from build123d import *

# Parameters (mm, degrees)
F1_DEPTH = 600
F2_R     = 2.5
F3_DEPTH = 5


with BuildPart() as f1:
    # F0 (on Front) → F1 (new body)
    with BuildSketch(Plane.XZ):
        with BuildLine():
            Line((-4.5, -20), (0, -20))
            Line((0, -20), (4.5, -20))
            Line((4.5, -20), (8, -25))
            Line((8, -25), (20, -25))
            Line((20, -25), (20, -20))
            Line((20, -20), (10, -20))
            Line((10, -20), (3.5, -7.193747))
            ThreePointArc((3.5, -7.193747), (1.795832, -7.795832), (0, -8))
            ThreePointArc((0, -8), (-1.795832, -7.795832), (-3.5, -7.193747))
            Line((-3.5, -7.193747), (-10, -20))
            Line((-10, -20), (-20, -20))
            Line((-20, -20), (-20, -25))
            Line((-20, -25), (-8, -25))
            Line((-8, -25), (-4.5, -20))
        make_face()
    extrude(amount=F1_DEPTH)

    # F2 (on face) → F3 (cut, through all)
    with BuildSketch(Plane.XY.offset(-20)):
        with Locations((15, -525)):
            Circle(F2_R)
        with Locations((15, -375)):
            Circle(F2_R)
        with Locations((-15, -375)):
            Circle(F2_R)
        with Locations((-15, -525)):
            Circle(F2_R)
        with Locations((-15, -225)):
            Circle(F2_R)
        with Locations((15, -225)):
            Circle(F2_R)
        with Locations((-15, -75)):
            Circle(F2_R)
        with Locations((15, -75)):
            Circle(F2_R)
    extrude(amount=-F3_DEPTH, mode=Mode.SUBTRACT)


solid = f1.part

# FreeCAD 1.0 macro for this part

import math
import FreeCAD as App
import Part
import Sketcher

V = App.Vector

doc = App.newDocument("Part")
body = doc.addObject("PartDesign::Body", "Body")

# Sketch on XZ plane
sketch1 = body.newObject("Sketcher::SketchObject", "Sketch")
sketch1.AttachmentSupport = (doc.getObject("XZ_Plane"), [""])
sketch1.MapMode = "FlatFace"
sketch1.addGeometry([
    Part.LineSegment(V(-4.5, -20, 0), V(4.5, -20, 0)),  # 0
    Part.LineSegment(V(4.5, -20, 0), V(8, -25, 0)),  # 1
    Part.LineSegment(V(8, -25, 0), V(20, -25, 0)),  # 2
    Part.LineSegment(V(20, -25, 0), V(20, -20, 0)),  # 3
    Part.LineSegment(V(20, -20, 0), V(10, -20, 0)),  # 4
    Part.LineSegment(V(10, -20, 0), V(3.5, -7.2, 0)),  # 5
    Part.ArcOfCircle(Part.Circle(V(0, 0, 0), V(0, 0, 1), 8), math.radians(-90), math.radians(-64)),  # 6
    Part.ArcOfCircle(Part.Circle(V(0, 0, 0), V(0, 0, 1), 8), math.radians(-116), math.radians(-90)),  # 7
    Part.LineSegment(V(-3.5, -7.2, 0), V(-10, -20, 0)),  # 8
    Part.LineSegment(V(-10, -20, 0), V(-20, -20, 0)),  # 9
    Part.LineSegment(V(-20, -20, 0), V(-20, -25, 0)),  # 10
    Part.LineSegment(V(-20, -25, 0), V(-8, -25, 0)),  # 11
    Part.LineSegment(V(-8, -25, 0), V(-4.5, -20, 0)),  # 12
], False)
sketch1.addConstraint([
    Sketcher.Constraint("Coincident", 0, 2, 1, 1),
    Sketcher.Constraint("Coincident", 1, 2, 2, 1),
    Sketcher.Constraint("Coincident", 2, 2, 3, 1),
    Sketcher.Constraint("Coincident", 3, 2, 4, 1),
    Sketcher.Constraint("Coincident", 4, 2, 5, 1),
    Sketcher.Constraint("Coincident", 5, 2, 6, 2),
    Sketcher.Constraint("Tangent", 6, 1, 7, 2),
    Sketcher.Constraint("Coincident", 7, 1, 8, 1),
    Sketcher.Constraint("Coincident", 8, 2, 9, 1),
    Sketcher.Constraint("Coincident", 9, 2, 10, 1),
    Sketcher.Constraint("Coincident", 10, 2, 11, 1),
    Sketcher.Constraint("Coincident", 11, 2, 12, 1),
    Sketcher.Constraint("Coincident", 12, 2, 0, 1),
    Sketcher.Constraint("Horizontal", 0),
    Sketcher.Constraint("Horizontal", 2),
    Sketcher.Constraint("Vertical", 3),
    Sketcher.Constraint("Horizontal", 4),
    Sketcher.Constraint("Horizontal", 9),
    Sketcher.Constraint("Vertical", 10),
    Sketcher.Constraint("Horizontal", 11),
    Sketcher.Constraint("Equal", 6, 7),
    Sketcher.Constraint("Symmetric", 5, 2, 7, 1, -2),
    Sketcher.Constraint("Symmetric", 4, 2, 8, 2, -2),
    Sketcher.Constraint("Symmetric", 2, 2, 10, 2, -2),
    Sketcher.Constraint("PointOnObject", 6, 1, -2),
    Sketcher.Constraint("Horizontal", 0, 2, 3, 2),
    Sketcher.Constraint("Equal", 2, 11),
    Sketcher.Constraint("Equal", 1, 12),
    Sketcher.Constraint("DistanceX", 0, 1, 0, 2, 9.0),
    Sketcher.Constraint("DistanceX", 2, 1, 2, 2, 12.0),
    Sketcher.Constraint("DistanceX", 4, 2, 4, 1, 10.0),
    Sketcher.Constraint("DistanceY", 3, 1, 3, 2, 5.0),
    Sketcher.Constraint("DistanceY", 0, 2, -1, 1, 20.0),
    Sketcher.Constraint("DistanceX", -1, 1, 1, 2, 8.0),
    Sketcher.Constraint("DistanceY", 6, 1, -1, 1, 8.0),
    Sketcher.Constraint("DistanceX", 5, 2, 0, 2, 1.0),
    Sketcher.Constraint("Radius", 6, 7.999973),
])
pad1 = body.newObject("PartDesign::Pad", "Pad")
pad1.Profile = sketch1
pad1.Length = 600

# Sketch on XY plane
sketch2 = body.newObject("Sketcher::SketchObject", "Sketch001")
sketch2.AttachmentSupport = (doc.getObject("XY_Plane"), [""])
sketch2.MapMode = "FlatFace"
sketch2.AttachmentOffset = App.Placement(V(0, 0, -20), App.Rotation())
sketch2.addGeometry([
    Part.Circle(V(15, -525, 0), V(0, 0, 1), 2.5),  # 0
    Part.Circle(V(15, -375, 0), V(0, 0, 1), 2.5),  # 1
    Part.Circle(V(-15, -375, 0), V(0, 0, 1), 2.5),  # 2
    Part.Circle(V(-15, -525, 0), V(0, 0, 1), 2.5),  # 3
    Part.Circle(V(-15, -225, 0), V(0, 0, 1), 2.5),  # 4
    Part.Circle(V(15, -225, 0), V(0, 0, 1), 2.5),  # 5
    Part.Circle(V(-15, -75, 0), V(0, 0, 1), 2.5),  # 6
    Part.Circle(V(15, -75, 0), V(0, 0, 1), 2.5),  # 7
], False)
sketch2.addConstraint([
    Sketcher.Constraint("Equal", 0, 1),
    Sketcher.Constraint("Equal", 1, 2),
    Sketcher.Constraint("Equal", 2, 3),
    Sketcher.Constraint("Equal", 3, 4),
    Sketcher.Constraint("Equal", 4, 5),
    Sketcher.Constraint("Equal", 5, 6),
    Sketcher.Constraint("Equal", 6, 7),
    Sketcher.Constraint("Symmetric", 1, 3, 2, 3, -2),
    Sketcher.Constraint("Symmetric", 0, 3, 3, 3, -2),
    Sketcher.Constraint("Symmetric", 4, 3, 5, 3, -2),
    Sketcher.Constraint("Symmetric", 6, 3, 7, 3, -2),
    Sketcher.Constraint("Vertical", 0, 3, 1, 3),
    Sketcher.Constraint("Vertical", 3, 3, 4, 3),
    Sketcher.Constraint("Vertical", 4, 3, 6, 3),
    Sketcher.Constraint("Diameter", 0, 5.0),
    Sketcher.Constraint("DistanceX", -1, 1, 0, 3, 15.0),
    Sketcher.Constraint("DistanceY", 0, 3, -1, 1, 525.0),
    Sketcher.Constraint("DistanceY", 1, 3, -1, 1, 375.0),
    Sketcher.Constraint("DistanceY", 4, 3, -1, 1, 225.0),
    Sketcher.Constraint("DistanceY", 6, 3, -1, 1, 75.0),
])
pocket1 = body.newObject("PartDesign::Pocket", "Pocket")
pocket1.Profile = sketch2
pocket1.Type = "ThroughAll"

doc.recompute()
